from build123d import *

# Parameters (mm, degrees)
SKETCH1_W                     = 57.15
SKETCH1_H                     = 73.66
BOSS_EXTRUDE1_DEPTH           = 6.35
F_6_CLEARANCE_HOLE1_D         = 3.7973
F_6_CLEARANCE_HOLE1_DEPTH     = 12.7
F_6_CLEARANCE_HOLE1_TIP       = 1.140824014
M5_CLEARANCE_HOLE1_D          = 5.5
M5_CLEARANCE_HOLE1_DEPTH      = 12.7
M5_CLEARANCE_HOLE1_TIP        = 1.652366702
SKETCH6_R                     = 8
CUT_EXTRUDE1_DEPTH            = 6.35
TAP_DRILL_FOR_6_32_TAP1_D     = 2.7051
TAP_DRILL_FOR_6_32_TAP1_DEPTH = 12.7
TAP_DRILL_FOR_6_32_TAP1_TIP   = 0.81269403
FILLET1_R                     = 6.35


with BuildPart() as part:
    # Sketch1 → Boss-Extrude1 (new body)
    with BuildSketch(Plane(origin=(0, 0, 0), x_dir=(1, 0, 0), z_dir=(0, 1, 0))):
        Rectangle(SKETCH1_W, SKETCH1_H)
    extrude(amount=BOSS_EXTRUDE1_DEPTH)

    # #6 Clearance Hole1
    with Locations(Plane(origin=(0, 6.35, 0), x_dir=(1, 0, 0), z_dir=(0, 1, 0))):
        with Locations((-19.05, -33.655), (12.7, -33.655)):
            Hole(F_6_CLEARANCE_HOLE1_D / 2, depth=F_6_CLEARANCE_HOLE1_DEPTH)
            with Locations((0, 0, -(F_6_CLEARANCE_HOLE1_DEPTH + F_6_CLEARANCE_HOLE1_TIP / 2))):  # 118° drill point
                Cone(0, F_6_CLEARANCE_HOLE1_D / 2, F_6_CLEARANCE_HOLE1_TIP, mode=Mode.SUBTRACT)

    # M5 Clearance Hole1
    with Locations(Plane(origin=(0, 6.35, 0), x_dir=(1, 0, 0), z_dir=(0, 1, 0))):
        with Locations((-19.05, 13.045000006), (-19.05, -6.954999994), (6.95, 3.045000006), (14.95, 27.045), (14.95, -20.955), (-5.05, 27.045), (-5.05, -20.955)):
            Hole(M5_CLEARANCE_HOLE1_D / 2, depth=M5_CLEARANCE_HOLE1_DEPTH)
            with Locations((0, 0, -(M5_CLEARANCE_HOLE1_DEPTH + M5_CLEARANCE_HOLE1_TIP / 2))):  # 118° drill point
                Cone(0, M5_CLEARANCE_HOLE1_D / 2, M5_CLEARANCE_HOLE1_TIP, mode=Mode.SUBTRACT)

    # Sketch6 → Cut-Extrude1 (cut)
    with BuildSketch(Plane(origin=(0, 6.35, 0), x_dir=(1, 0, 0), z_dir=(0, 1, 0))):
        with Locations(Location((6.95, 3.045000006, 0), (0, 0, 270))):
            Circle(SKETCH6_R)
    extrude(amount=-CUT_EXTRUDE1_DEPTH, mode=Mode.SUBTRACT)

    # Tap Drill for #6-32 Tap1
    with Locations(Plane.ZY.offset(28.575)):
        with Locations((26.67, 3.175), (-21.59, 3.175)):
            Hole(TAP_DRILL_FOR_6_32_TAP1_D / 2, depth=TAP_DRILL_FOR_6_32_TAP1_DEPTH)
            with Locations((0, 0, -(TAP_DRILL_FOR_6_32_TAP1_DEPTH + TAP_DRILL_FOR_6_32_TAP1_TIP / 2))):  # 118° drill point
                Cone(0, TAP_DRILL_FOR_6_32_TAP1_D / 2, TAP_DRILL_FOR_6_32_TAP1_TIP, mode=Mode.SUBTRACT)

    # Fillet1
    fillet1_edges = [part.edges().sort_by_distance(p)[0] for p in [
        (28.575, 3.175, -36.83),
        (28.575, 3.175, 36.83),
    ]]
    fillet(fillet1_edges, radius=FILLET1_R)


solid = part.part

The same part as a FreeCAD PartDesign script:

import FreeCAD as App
import Part
import Sketcher
from FreeCAD import Vector
Q = App.Units.Quantity


def edges_at(feature, points):
    """Names of the edges that pass closest to the given points."""
    edges = feature.Shape.Edges
    near = lambda p: min(range(len(edges)), key=lambda i: edges[i].distToShape(Part.Vertex(*p))[0])
    return sorted({f"Edge{near(p) + 1}" for p in points})


def add_polygon(sketch, points):
    """Adds a closed chain of lines whose ends are joined by coincident constraints."""
    first, n = sketch.GeometryCount, len(points)
    for a, b in zip(points, points[1:] + points[:1]):
        sketch.addGeometry(Part.LineSegment(App.Vector(*a, 0), App.Vector(*b, 0)), False)
    for i in range(n):
        sketch.addConstraint(Sketcher.Constraint("Coincident", first + i, 2, first + (i + 1) % n, 1))

doc = App.newDocument("Part")
body = doc.addObject("PartDesign::Body", "Body")

# Sketch on XZ plane
sketch1 = body.newObject("Sketcher::SketchObject", "Sketch")
sketch1.AttachmentSupport = (doc.getObject("XZ_Plane"), [""])
sketch1.MapMode = "FlatFace"
add_polygon(sketch1, [(-28.575, -36.83), (-28.575, 36.83), (28.575, 36.83), (28.575, -36.83)])  # lines 0-3
sketch1.addConstraint(Sketcher.Constraint("Vertical", 0))
sketch1.addConstraint(Sketcher.Constraint("Horizontal", 1))
sketch1.addConstraint(Sketcher.Constraint("Vertical", 2))
sketch1.addConstraint(Sketcher.Constraint("Horizontal", 3))
sketch1.addConstraint(Sketcher.Constraint("Symmetric", 0, 2, 2, 2, -1, 1))
sketch1.addConstraint(Sketcher.Constraint("DistanceY", 0, 1, 0, 2, Q("2.9 in")))
sketch1.addConstraint(Sketcher.Constraint("DistanceX", 1, 1, 1, 2, Q("2.25 in")))
pad1 = body.newObject("PartDesign::Pad", "Pad")
pad1.Profile = sketch1
pad1.Length = Q("0.25 in")
pad1.Reversed = True

# Sketch on XZ plane
sketch2 = body.newObject("Sketcher::SketchObject", "Sketch001")
sketch2.AttachmentSupport = (doc.getObject("XZ_Plane"), [""])
sketch2.MapMode = "FlatFace"
sketch2.AttachmentOffset = App.Placement(Vector(0, 0, -0.25 * 25.4), App.Rotation())
sketch2.addGeometry(Part.Circle(Vector(-19.05, 33.655, 0), Vector(0, 0, 1), 1.89865), False)
sketch2.addGeometry(Part.Circle(Vector(12.7, 33.655, 0), Vector(0, 0, 1), 1.89865), False)
sketch2.addConstraint(Sketcher.Constraint("Equal", 0, 1))
sketch2.addConstraint(Sketcher.Constraint("Horizontal", 0, 3, 1, 3))
sketch2.addConstraint(Sketcher.Constraint("Diameter", 0, Q("0.1495 in")))
sketch2.addConstraint(Sketcher.Constraint("DistanceX", -1, 1, 1, 3, Q("0.5 in")))
sketch2.addConstraint(Sketcher.Constraint("DistanceX", 0, 3, -1, 1, Q("0.75 in")))
sketch2.addConstraint(Sketcher.Constraint("DistanceY", -1, 1, 0, 3, Q("1.325 in")))
doc.recompute()
hole = body.newObject("PartDesign::Hole", "Hole")
hole.Profile = sketch2
hole.ThreadType = "None"
hole.Diameter = Q("0.1495 in")
hole.DepthType = "Dimension"
hole.Depth = Q("0.5 in")
hole.DrillPoint = "Angled"
hole.DrillPointAngle = 118
hole.Reversed = True

# Sketch on XZ plane
sketch3 = body.newObject("Sketcher::SketchObject", "Sketch002")
sketch3.AttachmentSupport = (doc.getObject("XZ_Plane"), [""])
sketch3.MapMode = "FlatFace"
sketch3.AttachmentOffset = App.Placement(Vector(0, 0, -0.25 * 25.4), App.Rotation())
sketch3.addGeometry(Part.Circle(Vector(-19.05, -13.045, 0), Vector(0, 0, 1), 2.75), False)
sketch3.addGeometry(Part.Circle(Vector(-19.05, 6.955, 0), Vector(0, 0, 1), 2.75), False)
sketch3.addGeometry(Part.Circle(Vector(6.95, -3.045, 0), Vector(0, 0, 1), 2.75), False)
sketch3.addGeometry(Part.Circle(Vector(14.95, -27.045, 0), Vector(0, 0, 1), 2.75), False)
sketch3.addGeometry(Part.Circle(Vector(14.95, 20.955, 0), Vector(0, 0, 1), 2.75), False)
sketch3.addGeometry(Part.Circle(Vector(-5.05, -27.045, 0), Vector(0, 0, 1), 2.75), False)
sketch3.addGeometry(Part.Circle(Vector(-5.05, 20.955, 0), Vector(0, 0, 1), 2.75), False)
sketch3.addConstraint(Sketcher.Constraint("Equal", 0, 1))
sketch3.addConstraint(Sketcher.Constraint("Equal", 1, 2))
sketch3.addConstraint(Sketcher.Constraint("Equal", 2, 3))
sketch3.addConstraint(Sketcher.Constraint("Equal", 3, 4))
sketch3.addConstraint(Sketcher.Constraint("Equal", 4, 5))
sketch3.addConstraint(Sketcher.Constraint("Equal", 5, 6))
sketch3.addConstraint(Sketcher.Constraint("Horizontal", 3, 3, 5, 3))
sketch3.addConstraint(Sketcher.Constraint("Horizontal", 4, 3, 6, 3))
sketch3.addConstraint(Sketcher.Constraint("Vertical", 0, 3, 1, 3))
sketch3.addConstraint(Sketcher.Constraint("Vertical", 3, 3, 4, 3))
sketch3.addConstraint(Sketcher.Constraint("Vertical", 5, 3, 6, 3))
sketch3.addConstraint(Sketcher.Constraint("Diameter", 0, 5.5))
sketch3.addConstraint(Sketcher.Constraint("DistanceX", 0, 3, -1, 1, Q("0.75 in")))
sketch3.addConstraint(Sketcher.Constraint("DistanceY", -1, 1, 4, 3, Q("0.825 in")))
sketch3.addConstraint(Sketcher.Constraint("DistanceY", 0, 3, -1, 1, 13.045))
sketch3.addConstraint(Sketcher.Constraint("DistanceY", -1, 1, 1, 3, 6.955))
sketch3.addConstraint(Sketcher.Constraint("DistanceX", -1, 1, 2, 3, 6.95))
sketch3.addConstraint(Sketcher.Constraint("DistanceY", 2, 3, -1, 1, 3.045))
sketch3.addConstraint(Sketcher.Constraint("DistanceX", -1, 1, 3, 3, 14.95))
sketch3.addConstraint(Sketcher.Constraint("DistanceY", 3, 3, -1, 1, 27.045))
sketch3.addConstraint(Sketcher.Constraint("DistanceX", 5, 3, -1, 1, 5.05))
doc.recompute()
hole2 = body.newObject("PartDesign::Hole", "Hole001")
hole2.Profile = sketch3
hole2.ThreadType = "None"
hole2.Diameter = 5.5
hole2.DepthType = "Dimension"
hole2.Depth = Q("0.5 in")
hole2.DrillPoint = "Angled"
hole2.DrillPointAngle = 118
hole2.Reversed = True

# Sketch on XZ plane
sketch4 = body.newObject("Sketcher::SketchObject", "Sketch003")
sketch4.AttachmentSupport = (doc.getObject("XZ_Plane"), [""])
sketch4.MapMode = "FlatFace"
sketch4.AttachmentOffset = App.Placement(Vector(0, 0, -0.25 * 25.4), App.Rotation())
sketch4.addGeometry(Part.Circle(Vector(6.95, -3.045, 0), Vector(0, 0, 1), 8), False)
sketch4.addConstraint(Sketcher.Constraint("Diameter", 0, 16.0))
sketch4.addConstraint(Sketcher.Constraint("DistanceX", -1, 1, 0, 3, 6.95))
sketch4.addConstraint(Sketcher.Constraint("DistanceY", 0, 3, -1, 1, 3.045))
pocket1 = body.newObject("PartDesign::Pocket", "Pocket")
pocket1.Profile = sketch4
pocket1.Length = Q("0.25 in")
pocket1.Reversed = True

# Sketch on YZ plane
sketch5 = body.newObject("Sketcher::SketchObject", "Sketch004")
sketch5.AttachmentSupport = (doc.getObject("YZ_Plane"), [""])
sketch5.MapMode = "FlatFace"
sketch5.AttachmentOffset = App.Placement(Vector(0, 0, -1.125 * 25.4), App.Rotation())
sketch5.addGeometry(Part.Circle(Vector(3.175, 26.67, 0), Vector(0, 0, 1), 1.35255), False)
sketch5.addGeometry(Part.Circle(Vector(3.175, -21.59, 0), Vector(0, 0, 1), 1.35255), False)
sketch5.addConstraint(Sketcher.Constraint("Equal", 0, 1))
sketch5.addConstraint(Sketcher.Constraint("Vertical", 0, 3, 1, 3))
sketch5.addConstraint(Sketcher.Constraint("Diameter", 0, Q("0.1065 in")))
sketch5.addConstraint(Sketcher.Constraint("DistanceY", 1, 3, 0, 3, Q("1.9 in")))
sketch5.addConstraint(Sketcher.Constraint("DistanceY", -1, 1, 0, 3, Q("1.05 in")))
sketch5.addConstraint(Sketcher.Constraint("DistanceX", -1, 1, 0, 3, Q("0.125 in")))
doc.recompute()
hole3 = body.newObject("PartDesign::Hole", "Hole002")
hole3.Profile = sketch5
hole3.ThreadType = "None"
hole3.Diameter = Q("0.1065 in")
hole3.DepthType = "Dimension"
hole3.Depth = Q("0.5 in")
hole3.DrillPoint = "Angled"
hole3.DrillPointAngle = 118
hole3.Reversed = True
doc.recompute()

fillet = body.newObject("PartDesign::Fillet", "Fillet")
fillet.Base = (hole3, edges_at(hole3, [(28.575, 3.175, -36.83), (28.575, 3.175, 36.83)]))
fillet.Radius = Q("0.25 in")

doc.recompute()
